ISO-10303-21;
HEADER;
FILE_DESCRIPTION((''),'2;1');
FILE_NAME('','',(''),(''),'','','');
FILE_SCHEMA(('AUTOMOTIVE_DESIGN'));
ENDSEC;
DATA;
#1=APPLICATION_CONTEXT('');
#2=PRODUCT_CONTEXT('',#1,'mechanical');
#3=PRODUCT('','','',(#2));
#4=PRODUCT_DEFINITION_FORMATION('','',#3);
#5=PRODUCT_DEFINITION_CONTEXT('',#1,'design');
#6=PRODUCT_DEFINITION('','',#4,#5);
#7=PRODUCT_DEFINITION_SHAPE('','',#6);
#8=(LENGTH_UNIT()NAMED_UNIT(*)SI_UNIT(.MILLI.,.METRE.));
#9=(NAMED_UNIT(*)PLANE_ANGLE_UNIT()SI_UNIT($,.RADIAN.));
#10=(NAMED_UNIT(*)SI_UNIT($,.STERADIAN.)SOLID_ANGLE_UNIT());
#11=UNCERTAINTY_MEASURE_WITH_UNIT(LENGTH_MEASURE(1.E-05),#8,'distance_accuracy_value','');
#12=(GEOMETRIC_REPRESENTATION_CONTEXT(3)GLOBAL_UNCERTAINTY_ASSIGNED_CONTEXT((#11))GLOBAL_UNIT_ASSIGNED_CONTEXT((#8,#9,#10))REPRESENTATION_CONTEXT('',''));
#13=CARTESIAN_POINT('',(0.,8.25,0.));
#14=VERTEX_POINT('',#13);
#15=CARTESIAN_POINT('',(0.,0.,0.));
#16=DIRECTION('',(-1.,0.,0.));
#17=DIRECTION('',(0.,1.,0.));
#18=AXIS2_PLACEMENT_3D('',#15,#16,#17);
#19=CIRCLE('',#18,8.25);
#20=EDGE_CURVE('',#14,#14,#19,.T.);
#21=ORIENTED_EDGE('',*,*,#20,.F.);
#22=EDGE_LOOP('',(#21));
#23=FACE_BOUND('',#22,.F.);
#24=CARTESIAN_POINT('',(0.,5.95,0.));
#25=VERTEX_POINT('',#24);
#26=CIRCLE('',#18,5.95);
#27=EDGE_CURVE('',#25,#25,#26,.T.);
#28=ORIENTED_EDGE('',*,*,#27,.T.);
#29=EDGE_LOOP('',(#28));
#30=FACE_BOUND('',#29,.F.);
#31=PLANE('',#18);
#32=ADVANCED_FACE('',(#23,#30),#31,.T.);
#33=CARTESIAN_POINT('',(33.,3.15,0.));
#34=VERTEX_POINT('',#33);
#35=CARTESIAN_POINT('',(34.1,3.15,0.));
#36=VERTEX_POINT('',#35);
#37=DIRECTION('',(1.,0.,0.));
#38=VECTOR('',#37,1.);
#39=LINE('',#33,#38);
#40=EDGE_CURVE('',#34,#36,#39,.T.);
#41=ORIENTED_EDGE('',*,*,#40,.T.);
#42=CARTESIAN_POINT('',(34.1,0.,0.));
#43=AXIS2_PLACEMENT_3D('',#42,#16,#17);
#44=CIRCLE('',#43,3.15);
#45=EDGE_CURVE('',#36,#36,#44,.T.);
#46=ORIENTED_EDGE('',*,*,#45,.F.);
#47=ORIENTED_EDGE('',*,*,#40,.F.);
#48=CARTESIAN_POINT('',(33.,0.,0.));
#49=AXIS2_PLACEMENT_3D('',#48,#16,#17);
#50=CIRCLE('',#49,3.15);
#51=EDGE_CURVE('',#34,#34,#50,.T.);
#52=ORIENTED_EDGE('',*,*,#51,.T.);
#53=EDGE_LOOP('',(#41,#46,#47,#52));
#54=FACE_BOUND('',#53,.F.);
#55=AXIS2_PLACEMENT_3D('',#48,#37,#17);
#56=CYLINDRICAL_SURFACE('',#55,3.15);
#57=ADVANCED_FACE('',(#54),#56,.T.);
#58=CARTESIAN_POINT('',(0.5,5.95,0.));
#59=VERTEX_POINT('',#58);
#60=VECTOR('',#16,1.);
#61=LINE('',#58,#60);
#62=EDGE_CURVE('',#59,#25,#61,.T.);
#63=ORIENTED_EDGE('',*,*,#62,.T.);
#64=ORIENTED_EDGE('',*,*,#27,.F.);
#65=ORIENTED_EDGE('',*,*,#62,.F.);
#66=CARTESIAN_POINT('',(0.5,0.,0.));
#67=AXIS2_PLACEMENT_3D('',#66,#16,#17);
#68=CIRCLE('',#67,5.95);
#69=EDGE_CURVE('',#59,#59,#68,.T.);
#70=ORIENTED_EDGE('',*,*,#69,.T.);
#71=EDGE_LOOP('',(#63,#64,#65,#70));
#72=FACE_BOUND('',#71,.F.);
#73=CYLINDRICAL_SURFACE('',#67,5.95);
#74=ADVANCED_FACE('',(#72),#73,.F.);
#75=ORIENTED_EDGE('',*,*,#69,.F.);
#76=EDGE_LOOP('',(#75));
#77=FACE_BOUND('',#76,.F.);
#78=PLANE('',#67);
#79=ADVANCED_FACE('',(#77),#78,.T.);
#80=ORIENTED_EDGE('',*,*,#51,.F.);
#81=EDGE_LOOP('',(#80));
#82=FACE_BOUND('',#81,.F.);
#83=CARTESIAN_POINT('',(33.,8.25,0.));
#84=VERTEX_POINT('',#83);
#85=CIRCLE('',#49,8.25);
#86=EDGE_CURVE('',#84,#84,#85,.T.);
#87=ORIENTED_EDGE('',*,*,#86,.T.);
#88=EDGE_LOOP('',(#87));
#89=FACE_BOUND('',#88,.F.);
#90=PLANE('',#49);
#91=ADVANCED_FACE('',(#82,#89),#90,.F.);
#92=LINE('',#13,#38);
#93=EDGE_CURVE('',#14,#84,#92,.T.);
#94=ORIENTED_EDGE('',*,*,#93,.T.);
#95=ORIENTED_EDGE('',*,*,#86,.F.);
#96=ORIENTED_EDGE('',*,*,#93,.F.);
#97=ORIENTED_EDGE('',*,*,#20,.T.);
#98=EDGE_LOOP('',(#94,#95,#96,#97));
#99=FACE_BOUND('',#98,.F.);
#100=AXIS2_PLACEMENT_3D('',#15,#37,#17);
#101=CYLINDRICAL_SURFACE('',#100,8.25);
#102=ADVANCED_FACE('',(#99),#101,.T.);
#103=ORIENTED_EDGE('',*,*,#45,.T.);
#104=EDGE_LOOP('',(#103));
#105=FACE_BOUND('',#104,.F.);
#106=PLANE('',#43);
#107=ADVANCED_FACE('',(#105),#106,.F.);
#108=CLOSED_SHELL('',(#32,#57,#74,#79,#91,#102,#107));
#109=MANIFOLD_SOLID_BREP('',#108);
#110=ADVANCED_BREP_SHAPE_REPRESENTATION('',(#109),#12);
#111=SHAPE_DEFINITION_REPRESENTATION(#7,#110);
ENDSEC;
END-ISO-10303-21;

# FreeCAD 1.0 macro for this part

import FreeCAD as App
import Part
import Sketcher

V = App.Vector
Q = App.Units.Quantity


def add_polygon(sketch, points):
    """Adds a closed chain of lines whose ends are joined by coincident constraints."""
    first, n = sketch.GeometryCount, len(points)
    for a, b in zip(points, points[1:] + points[:1]):
        sketch.addGeometry(Part.LineSegment(App.Vector(*a, 0), App.Vector(*b, 0)), False)
    for i in range(n):
        sketch.addConstraint(Sketcher.Constraint("Coincident", first + i, 2, first + (i + 1) % n, 1))

doc = App.newDocument("Part")
body = doc.addObject("PartDesign::Body", "Body")

# Sketch on XY plane
sketch1 = doc.addObject("Sketcher::SketchObject", "Sketch")
body.addObject(sketch1)
sketch1.AttachmentSupport = (doc.XY_Plane, [""])
sketch1.MapMode = "FlatFace"
add_polygon(sketch1, [(0.5, 5.95), (0.5, 0), (34.1, 0), (34.1, 3.15), (33, 3.15), (33, 8.25), (0, 8.25), (0, 5.95)])  # lines 0-7
sketch1.addConstraint([
    Sketcher.Constraint("Vertical", 0),
    Sketcher.Constraint("Horizontal", 1),
    Sketcher.Constraint("Vertical", 2),
    Sketcher.Constraint("Horizontal", 3),
    Sketcher.Constraint("Vertical", 4),
    Sketcher.Constraint("Horizontal", 5),
    Sketcher.Constraint("Vertical", 6),
    Sketcher.Constraint("Horizontal", 7),
    Sketcher.Constraint("PointOnObject", 0, 2, -1),
    Sketcher.Constraint("PointOnObject", 5, 2, -2),
    Sketcher.Constraint("DistanceX", 5, 2, 5, 1, Q("33 mm")),
    Sketcher.Constraint("DistanceX", 7, 1, 7, 2, Q("0.5 mm")),
    Sketcher.Constraint("DistanceY", 0, 2, 0, 1, Q("5.95 mm")),
    Sketcher.Constraint("DistanceY", 2, 1, 2, 2, Q("3.15 mm")),
    Sketcher.Constraint("DistanceX", -1, 1, 1, 2, Q("34.1 mm")),
    Sketcher.Constraint("DistanceY", -1, 1, 4, 2, Q("8.25 mm")),
])
revolution = doc.addObject("PartDesign::Revolution", "Revolution")
body.addObject(revolution)
revolution.Profile = sketch1
revolution.ReferenceAxis = (sketch1, ["H_Axis"])
revolution.Angle = 360

doc.recompute()
